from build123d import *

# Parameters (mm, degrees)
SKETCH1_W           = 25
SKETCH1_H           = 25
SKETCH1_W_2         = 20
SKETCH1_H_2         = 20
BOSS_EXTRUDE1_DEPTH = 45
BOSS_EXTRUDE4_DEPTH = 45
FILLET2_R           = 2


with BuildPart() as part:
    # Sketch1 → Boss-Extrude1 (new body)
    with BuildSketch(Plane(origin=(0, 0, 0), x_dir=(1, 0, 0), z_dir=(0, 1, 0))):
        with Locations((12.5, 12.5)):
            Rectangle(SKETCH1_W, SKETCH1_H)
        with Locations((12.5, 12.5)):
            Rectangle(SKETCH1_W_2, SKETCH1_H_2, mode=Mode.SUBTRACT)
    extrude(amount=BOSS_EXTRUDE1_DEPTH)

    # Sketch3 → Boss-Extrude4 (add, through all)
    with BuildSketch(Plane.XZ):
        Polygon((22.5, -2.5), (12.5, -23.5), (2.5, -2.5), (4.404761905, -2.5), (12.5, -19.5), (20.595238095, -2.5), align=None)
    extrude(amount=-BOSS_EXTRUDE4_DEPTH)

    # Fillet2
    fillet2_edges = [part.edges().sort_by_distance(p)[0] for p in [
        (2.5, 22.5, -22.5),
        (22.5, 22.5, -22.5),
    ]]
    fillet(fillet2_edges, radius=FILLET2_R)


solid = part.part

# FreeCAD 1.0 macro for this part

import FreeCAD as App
import Part
import Sketcher
from FreeCAD import Vector


def edges_at(feature, points):
    """Names of the edges that pass closest to the given points."""
    edges = feature.Shape.Edges
    near = lambda p: min(range(len(edges)), key=lambda i: edges[i].distToShape(Part.Vertex(*p))[0])
    return sorted({f"Edge{near(p) + 1}" for p in points})


def add_polygon(sketch, points):
    """Adds a closed chain of lines whose ends are joined by coincident constraints."""
    first, n = sketch.GeometryCount, len(points)
    for a, b in zip(points, points[1:] + points[:1]):
        sketch.addGeometry(Part.LineSegment(App.Vector(*a, 0), App.Vector(*b, 0)), False)
    for i in range(n):
        sketch.addConstraint(Sketcher.Constraint("Coincident", first + i, 2, first + (i + 1) % n, 1))

doc = App.newDocument("Part")
params = doc.addObject("Spreadsheet::Sheet", "Params")
for row, (alias, value) in enumerate([
    ("sketch1_width", "25 mm"),
    ("sketch1_width2", "20 mm"),
    ("pad1_length", "45 mm"),
    ("pad2_length", "45 mm"),
    ("fillet_radius", "2 mm"),
], start=1):
    params.set(f"A{row}", alias)
    params.set(f"B{row}", "=" + value)
    params.setAlias(f"B{row}", alias)

body = doc.addObject("PartDesign::Body", "Body")

sketch1 = doc.addObject("Sketcher::SketchObject", "Sketch")
body.addObject(sketch1)
sketch1.AttachmentSupport = (doc.XZ_Plane, [""])
sketch1.MapMode = "FlatFace"
add_polygon(sketch1, [(0, -25), (0, 0), (25, 0), (25, -25)])
add_polygon(sketch1, [(22, -2), (2, -2), (2, -22), (22, -22)])
sketch1.addConstraint(Sketcher.Constraint("Vertical", 0))
sketch1.addConstraint(Sketcher.Constraint("Horizontal", 1))
sketch1.addConstraint(Sketcher.Constraint("Vertical", 2))
sketch1.addConstraint(Sketcher.Constraint("Horizontal", 3))
sketch1.addConstraint(Sketcher.Constraint("Horizontal", 4))
sketch1.addConstraint(Sketcher.Constraint("Vertical", 5))
sketch1.addConstraint(Sketcher.Constraint("Horizontal", 6))
sketch1.addConstraint(Sketcher.Constraint("Vertical", 7))
sketch1.addConstraint(Sketcher.Constraint("Coincident", 0, 2, -1, 1))
sketch1.addConstraint(Sketcher.Constraint("Equal", 3, 0))
sketch1.addConstraint(Sketcher.Constraint("Equal", 6, 5))
sketch1.addConstraint(Sketcher.Constraint("DistanceX", 1, 1, 1, 2, 25.0))
sketch1.addConstraint(Sketcher.Constraint("DistanceX", 4, 2, 4, 1, 20.0))
sketch1.addConstraint(Sketcher.Constraint("DistanceX", -1, 1, 4, 2, 2.5))
sketch1.addConstraint(Sketcher.Constraint("DistanceY", 4, 2, -1, 1, 2.5))
sketch1.setExpression("Constraints[19]", "Params.sketch1_width")
sketch1.setExpression("Constraints[20]", "Params.sketch1_width2")
pad1 = doc.addObject("PartDesign::Pad", "Pad")
body.addObject(pad1)
pad1.Profile = sketch1
pad1.setExpression("Length", "Params.pad1_length")
pad1.Reversed = True

sketch2 = doc.addObject("Sketcher::SketchObject", "Sketch001")
body.addObject(sketch2)
sketch2.AttachmentSupport = (doc.XZ_Plane, [""])
sketch2.MapMode = "FlatFace"
add_polygon(sketch2, [(12.5, -23.5), (22.5, -2.5), (20.6, -2.5), (12.5, -19.5), (4.4, -2.5), (2.5, -2.5)])
sketch2.addConstraint(Sketcher.Constraint("Horizontal", 1))
sketch2.addConstraint(Sketcher.Constraint("Horizontal", 4))
sketch2.addConstraint(Sketcher.Constraint("Parallel", 0, 2))
sketch2.addConstraint(Sketcher.Constraint("Parallel", 3, 5))
sketch2.addConstraint(Sketcher.Constraint("Horizontal", 1, 2, 3, 2))
sketch2.addConstraint(Sketcher.Constraint("Vertical", 2, 2, 5, 2))
sketch2.addConstraint(Sketcher.Constraint("Equal", 1, 4))
sketch2.addConstraint(Sketcher.Constraint("DistanceY", 2, 2, 1, 2, 17.0))
sketch2.addConstraint(Sketcher.Constraint("DistanceX", 2, 2, 0, 2, 10.0))
sketch2.addConstraint(Sketcher.Constraint("DistanceY", 5, 2, 2, 2, 4.0))
sketch2.addConstraint(Sketcher.Constraint("DistanceX", -1, 1, 0, 2, 22.5))
sketch2.addConstraint(Sketcher.Constraint("DistanceY", 0, 2, -1, 1, 2.5))
pad2 = doc.addObject("PartDesign::Pad", "Pad001")
body.addObject(pad2)
pad2.Profile = sketch2
pad2.setExpression("Length", "Params.pad2_length")
pad2.Reversed = True
doc.recompute()

fillet = doc.addObject("PartDesign::Fillet", "Fillet")
body.addObject(fillet)
fillet.Base = (pad2, edges_at(pad2, [(2.5, 22.5, -22.5), (22.5, 22.5, -22.5)]))
fillet.setExpression("Radius", "Params.fillet_radius")

doc.recompute()
